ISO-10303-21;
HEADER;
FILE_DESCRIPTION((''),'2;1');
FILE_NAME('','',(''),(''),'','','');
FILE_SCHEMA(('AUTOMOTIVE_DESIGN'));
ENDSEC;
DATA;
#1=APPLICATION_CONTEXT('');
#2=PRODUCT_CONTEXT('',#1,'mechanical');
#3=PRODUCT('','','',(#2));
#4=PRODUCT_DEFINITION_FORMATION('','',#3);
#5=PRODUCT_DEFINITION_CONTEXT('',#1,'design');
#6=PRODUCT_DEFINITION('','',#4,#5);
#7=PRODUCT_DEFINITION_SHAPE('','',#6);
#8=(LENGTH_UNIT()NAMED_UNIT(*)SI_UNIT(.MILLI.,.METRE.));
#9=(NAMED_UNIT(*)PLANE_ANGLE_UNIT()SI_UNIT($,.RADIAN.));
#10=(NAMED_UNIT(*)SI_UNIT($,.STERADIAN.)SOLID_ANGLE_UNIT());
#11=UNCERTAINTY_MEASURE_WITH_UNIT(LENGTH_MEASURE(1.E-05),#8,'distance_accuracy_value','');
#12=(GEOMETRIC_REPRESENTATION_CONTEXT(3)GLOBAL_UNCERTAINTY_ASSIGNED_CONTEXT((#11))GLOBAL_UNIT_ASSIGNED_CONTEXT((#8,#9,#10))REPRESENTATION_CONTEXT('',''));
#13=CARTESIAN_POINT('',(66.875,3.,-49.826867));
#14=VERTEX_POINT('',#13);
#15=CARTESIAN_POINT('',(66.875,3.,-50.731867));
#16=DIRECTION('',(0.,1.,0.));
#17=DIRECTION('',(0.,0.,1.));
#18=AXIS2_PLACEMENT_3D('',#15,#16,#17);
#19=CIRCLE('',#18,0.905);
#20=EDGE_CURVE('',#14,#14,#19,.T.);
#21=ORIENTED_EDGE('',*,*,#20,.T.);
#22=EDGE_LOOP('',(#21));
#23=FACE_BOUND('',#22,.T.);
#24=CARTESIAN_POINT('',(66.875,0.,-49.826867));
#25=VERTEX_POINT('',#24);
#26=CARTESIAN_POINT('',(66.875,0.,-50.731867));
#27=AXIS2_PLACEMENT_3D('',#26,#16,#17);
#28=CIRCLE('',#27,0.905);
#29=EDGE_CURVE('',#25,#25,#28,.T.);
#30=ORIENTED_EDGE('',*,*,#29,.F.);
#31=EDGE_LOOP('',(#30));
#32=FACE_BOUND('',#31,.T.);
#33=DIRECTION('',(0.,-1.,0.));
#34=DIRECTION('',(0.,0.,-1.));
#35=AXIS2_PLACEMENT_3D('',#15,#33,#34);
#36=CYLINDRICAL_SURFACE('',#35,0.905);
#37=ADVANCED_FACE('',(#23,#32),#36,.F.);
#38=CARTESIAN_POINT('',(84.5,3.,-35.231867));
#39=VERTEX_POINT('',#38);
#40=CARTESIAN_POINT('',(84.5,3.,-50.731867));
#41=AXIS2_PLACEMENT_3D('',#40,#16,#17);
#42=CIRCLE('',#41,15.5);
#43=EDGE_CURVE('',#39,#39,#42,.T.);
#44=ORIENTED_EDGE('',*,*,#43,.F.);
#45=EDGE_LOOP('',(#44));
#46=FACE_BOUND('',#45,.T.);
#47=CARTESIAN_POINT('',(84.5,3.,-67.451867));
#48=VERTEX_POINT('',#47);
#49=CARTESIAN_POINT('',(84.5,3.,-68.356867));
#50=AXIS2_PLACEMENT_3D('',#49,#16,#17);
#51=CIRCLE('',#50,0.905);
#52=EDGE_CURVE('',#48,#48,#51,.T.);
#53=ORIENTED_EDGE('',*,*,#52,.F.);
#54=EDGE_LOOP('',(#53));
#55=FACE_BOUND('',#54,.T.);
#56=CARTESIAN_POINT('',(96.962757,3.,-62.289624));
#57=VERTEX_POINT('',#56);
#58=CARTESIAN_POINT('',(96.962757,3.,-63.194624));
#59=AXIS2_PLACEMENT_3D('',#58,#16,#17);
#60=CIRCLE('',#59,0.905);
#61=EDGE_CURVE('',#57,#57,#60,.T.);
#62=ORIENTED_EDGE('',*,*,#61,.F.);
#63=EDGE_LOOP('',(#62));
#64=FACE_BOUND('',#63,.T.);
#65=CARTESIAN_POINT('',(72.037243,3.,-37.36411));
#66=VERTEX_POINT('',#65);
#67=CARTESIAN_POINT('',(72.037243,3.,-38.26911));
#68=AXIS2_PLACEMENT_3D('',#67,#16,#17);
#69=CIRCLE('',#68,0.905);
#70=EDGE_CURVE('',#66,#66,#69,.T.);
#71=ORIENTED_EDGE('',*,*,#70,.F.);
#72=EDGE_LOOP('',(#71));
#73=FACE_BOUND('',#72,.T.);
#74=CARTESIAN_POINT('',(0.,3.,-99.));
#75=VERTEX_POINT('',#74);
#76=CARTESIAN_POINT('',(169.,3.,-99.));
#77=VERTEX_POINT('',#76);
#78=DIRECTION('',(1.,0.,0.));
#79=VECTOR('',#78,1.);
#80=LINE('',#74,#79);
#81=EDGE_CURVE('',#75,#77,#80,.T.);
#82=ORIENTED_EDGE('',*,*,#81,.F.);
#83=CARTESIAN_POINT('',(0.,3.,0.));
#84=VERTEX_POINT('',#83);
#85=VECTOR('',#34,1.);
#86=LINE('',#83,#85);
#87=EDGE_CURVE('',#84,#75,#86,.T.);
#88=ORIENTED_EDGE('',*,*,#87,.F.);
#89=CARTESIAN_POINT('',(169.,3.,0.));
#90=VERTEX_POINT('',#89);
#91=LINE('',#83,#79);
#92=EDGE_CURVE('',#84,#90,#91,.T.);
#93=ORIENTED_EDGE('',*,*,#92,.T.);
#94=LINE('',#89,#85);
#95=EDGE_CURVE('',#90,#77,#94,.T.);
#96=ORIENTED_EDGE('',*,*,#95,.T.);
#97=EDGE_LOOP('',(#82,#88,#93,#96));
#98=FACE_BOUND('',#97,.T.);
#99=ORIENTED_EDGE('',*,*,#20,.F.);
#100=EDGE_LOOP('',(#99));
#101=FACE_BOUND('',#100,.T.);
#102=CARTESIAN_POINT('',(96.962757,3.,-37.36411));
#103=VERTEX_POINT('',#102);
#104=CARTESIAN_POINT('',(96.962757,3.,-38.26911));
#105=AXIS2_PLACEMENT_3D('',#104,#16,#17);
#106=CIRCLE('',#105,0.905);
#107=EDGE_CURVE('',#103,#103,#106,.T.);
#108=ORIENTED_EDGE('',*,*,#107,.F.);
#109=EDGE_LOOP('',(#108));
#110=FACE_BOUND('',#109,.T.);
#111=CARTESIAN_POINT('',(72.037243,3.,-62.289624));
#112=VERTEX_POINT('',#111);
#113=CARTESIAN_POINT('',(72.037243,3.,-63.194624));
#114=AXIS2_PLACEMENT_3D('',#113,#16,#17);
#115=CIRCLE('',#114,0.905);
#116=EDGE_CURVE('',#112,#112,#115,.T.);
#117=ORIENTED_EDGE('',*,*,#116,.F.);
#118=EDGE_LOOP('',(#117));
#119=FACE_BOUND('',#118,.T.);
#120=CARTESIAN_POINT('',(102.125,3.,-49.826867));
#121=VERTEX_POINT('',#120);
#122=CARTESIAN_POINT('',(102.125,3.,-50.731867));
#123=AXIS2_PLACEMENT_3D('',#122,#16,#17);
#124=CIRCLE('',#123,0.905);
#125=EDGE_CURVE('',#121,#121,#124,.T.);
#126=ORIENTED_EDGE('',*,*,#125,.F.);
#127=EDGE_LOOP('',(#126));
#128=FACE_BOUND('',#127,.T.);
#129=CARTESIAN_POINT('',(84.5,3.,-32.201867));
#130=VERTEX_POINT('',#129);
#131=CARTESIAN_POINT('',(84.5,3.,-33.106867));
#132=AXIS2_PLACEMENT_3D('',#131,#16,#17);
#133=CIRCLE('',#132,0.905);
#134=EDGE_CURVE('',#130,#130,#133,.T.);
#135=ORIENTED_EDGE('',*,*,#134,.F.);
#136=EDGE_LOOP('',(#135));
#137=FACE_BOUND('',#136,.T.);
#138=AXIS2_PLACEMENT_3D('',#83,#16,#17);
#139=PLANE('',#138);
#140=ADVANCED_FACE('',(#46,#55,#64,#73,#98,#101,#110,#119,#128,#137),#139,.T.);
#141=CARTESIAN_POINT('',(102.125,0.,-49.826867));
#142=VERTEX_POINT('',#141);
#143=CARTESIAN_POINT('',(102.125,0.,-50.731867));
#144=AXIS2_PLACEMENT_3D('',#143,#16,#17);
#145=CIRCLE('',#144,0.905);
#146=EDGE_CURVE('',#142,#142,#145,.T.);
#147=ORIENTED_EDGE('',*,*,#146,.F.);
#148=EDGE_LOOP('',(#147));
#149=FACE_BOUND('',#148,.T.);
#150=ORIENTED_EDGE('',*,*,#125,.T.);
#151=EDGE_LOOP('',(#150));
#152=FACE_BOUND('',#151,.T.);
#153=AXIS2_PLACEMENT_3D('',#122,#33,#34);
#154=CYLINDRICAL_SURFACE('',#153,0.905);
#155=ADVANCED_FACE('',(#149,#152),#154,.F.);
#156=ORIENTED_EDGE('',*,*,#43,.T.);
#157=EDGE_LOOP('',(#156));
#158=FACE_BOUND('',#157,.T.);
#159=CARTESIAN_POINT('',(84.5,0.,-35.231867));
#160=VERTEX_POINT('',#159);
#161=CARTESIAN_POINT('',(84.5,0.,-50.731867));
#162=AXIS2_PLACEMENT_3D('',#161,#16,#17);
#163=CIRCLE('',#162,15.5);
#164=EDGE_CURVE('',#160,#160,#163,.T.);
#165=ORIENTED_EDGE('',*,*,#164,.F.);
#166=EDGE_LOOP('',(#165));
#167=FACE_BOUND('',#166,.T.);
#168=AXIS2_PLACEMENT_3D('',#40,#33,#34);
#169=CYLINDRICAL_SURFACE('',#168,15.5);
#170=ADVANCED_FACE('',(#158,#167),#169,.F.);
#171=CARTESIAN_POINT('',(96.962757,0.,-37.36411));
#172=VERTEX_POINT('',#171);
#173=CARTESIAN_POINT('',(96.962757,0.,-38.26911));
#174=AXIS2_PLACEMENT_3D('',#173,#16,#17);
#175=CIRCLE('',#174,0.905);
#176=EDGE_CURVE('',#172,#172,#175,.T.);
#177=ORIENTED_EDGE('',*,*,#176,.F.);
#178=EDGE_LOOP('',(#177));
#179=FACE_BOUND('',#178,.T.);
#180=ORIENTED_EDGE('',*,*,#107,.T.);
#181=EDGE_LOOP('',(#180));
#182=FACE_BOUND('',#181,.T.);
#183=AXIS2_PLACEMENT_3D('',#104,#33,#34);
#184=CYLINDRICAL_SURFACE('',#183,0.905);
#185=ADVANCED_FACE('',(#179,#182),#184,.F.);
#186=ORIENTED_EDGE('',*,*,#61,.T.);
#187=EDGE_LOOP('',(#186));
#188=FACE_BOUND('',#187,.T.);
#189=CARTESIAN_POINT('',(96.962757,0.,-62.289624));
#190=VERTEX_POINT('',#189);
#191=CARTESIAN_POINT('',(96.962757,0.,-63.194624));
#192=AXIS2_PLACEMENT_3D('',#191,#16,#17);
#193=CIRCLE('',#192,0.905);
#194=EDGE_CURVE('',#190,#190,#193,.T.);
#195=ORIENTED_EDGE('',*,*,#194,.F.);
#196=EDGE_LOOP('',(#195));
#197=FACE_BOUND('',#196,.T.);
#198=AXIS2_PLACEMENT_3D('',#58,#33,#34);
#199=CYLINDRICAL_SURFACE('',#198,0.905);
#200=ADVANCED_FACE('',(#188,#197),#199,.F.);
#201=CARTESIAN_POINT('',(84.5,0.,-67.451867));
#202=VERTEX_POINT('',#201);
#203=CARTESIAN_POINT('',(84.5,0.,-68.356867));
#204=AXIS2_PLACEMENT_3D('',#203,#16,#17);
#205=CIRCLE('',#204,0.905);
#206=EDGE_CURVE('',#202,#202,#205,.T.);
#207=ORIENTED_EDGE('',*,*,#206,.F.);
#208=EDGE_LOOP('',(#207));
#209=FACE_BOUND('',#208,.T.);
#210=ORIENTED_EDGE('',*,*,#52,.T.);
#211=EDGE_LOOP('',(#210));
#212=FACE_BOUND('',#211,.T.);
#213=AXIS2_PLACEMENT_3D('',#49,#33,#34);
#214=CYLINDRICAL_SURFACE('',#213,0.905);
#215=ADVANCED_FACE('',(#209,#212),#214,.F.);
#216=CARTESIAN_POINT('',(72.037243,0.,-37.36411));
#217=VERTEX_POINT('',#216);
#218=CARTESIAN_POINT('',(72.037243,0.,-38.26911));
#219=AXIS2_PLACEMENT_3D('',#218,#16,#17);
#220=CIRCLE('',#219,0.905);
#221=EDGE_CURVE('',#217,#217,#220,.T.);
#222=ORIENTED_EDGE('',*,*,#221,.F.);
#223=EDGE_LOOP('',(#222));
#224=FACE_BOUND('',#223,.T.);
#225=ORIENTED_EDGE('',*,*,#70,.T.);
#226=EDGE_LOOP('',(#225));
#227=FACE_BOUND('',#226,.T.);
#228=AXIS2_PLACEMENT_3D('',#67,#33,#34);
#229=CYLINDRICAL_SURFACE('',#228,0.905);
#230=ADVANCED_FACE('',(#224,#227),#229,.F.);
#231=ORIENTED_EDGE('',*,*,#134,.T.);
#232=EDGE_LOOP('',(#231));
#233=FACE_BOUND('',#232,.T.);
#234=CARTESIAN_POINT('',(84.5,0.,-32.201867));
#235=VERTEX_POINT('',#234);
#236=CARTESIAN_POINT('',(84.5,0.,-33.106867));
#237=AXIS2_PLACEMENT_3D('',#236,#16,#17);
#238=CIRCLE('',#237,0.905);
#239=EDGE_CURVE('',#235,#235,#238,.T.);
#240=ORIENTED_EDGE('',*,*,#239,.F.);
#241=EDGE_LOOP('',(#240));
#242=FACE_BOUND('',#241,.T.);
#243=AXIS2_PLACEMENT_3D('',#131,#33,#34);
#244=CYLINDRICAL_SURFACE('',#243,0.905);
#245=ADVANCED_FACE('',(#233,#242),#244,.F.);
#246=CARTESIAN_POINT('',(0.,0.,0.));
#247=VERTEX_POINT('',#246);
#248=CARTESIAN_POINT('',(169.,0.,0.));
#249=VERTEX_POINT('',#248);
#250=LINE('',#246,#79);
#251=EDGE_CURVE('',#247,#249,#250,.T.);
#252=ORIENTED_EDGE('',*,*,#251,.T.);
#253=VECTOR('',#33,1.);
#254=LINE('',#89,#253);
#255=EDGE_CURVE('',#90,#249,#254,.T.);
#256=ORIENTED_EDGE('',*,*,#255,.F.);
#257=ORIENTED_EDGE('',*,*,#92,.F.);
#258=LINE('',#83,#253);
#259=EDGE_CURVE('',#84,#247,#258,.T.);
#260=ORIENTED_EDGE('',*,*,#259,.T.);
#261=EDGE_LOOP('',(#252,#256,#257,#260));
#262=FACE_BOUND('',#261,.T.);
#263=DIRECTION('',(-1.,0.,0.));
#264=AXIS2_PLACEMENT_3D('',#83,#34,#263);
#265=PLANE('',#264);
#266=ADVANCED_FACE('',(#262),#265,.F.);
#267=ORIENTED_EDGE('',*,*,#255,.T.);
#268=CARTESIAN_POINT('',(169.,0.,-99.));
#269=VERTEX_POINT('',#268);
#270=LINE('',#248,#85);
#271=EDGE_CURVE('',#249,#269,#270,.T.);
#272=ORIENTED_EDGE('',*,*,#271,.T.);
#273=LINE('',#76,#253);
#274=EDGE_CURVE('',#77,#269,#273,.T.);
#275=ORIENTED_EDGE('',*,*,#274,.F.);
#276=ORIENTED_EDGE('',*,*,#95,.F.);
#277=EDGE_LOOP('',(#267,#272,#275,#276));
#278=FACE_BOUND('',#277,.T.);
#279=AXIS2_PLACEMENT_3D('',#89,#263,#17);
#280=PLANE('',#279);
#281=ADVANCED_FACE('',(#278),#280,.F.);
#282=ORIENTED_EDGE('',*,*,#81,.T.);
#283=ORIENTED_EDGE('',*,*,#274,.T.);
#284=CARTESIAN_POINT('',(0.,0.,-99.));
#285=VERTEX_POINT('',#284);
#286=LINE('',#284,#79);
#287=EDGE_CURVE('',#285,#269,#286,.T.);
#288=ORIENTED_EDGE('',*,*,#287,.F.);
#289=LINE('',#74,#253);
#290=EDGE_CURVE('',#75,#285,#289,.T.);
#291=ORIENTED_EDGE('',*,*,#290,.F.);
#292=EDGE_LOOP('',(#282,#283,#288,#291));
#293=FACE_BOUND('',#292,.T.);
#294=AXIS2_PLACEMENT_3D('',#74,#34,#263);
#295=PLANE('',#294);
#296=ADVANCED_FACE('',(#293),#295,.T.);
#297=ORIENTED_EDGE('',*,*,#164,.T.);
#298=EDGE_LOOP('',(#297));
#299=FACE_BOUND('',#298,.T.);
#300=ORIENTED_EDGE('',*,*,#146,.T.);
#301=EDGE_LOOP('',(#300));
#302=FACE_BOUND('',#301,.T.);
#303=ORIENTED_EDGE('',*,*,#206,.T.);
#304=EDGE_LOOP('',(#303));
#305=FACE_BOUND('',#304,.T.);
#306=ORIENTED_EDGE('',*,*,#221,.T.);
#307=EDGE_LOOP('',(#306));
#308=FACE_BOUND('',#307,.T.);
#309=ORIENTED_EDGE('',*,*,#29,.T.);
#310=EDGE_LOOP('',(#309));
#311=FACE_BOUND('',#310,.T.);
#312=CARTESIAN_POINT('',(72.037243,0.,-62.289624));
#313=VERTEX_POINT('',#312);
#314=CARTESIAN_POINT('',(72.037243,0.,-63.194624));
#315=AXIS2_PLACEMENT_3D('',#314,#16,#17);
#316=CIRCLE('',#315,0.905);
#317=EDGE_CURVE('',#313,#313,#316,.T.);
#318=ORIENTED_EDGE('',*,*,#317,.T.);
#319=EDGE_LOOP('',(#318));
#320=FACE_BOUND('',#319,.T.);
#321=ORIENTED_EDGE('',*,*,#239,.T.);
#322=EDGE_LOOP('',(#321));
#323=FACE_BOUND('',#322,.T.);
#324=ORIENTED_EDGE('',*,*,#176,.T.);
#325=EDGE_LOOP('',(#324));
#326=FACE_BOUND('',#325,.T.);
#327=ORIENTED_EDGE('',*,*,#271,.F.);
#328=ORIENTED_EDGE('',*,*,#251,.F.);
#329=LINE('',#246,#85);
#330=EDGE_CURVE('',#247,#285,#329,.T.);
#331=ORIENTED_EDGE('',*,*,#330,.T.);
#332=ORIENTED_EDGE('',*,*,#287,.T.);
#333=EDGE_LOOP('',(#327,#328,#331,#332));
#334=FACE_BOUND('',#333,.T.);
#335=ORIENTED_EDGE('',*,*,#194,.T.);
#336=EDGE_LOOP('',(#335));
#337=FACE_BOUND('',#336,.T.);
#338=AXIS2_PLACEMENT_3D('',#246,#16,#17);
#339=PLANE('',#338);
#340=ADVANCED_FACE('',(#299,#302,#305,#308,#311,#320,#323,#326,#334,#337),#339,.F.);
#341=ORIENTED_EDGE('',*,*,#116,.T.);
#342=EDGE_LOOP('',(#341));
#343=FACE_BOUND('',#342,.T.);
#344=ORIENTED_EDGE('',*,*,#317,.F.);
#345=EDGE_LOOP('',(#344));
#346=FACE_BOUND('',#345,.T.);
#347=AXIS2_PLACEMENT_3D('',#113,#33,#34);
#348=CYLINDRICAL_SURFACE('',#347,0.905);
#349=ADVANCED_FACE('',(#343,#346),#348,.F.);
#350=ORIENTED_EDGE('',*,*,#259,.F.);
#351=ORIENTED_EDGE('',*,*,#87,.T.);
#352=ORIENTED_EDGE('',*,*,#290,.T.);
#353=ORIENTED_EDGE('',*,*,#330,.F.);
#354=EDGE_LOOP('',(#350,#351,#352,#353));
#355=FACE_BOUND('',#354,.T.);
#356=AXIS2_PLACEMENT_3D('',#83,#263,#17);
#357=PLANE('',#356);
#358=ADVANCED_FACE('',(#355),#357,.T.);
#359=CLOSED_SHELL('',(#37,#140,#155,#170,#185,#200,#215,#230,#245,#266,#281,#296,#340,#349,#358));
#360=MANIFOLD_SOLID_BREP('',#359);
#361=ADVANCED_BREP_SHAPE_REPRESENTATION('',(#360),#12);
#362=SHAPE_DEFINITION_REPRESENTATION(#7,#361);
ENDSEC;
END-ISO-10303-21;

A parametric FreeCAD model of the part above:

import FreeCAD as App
import Part
import Sketcher

V = App.Vector

doc = App.newDocument("Part")
body = doc.addObject("PartDesign::Body", "Body")

# Sketch on XZ plane
sketch1 = body.newObject("Sketcher::SketchObject", "Sketch")
sketch1.AttachmentSupport = (doc.getObject("XZ_Plane"), [""])
sketch1.MapMode = "FlatFace"
sketch1.addGeometry([
    Part.LineSegment(V(0, -99, 0), V(0, 0, 0)),  # 0
    Part.LineSegment(V(0, 0, 0), V(169, 0, 0)),  # 1
    Part.LineSegment(V(169, 0, 0), V(169, -99, 0)),  # 2
    Part.LineSegment(V(169, -99, 0), V(0, -99, 0)),  # 3
    Part.Circle(V(72, -38.3, 0), V(0, 0, 1), 0.9),  # 4
    Part.Circle(V(84.5, -33.1, 0), V(0, 0, 1), 0.9),  # 5
    Part.Circle(V(97, -38.3, 0), V(0, 0, 1), 0.9),  # 6
    Part.Circle(V(66.9, -50.7, 0), V(0, 0, 1), 0.9),  # 7
    Part.Circle(V(72, -63.2, 0), V(0, 0, 1), 0.9),  # 8
    Part.Circle(V(84.5, -50.7, 0), V(0, 0, 1), 15.5),  # 9
    Part.Circle(V(102.1, -50.7, 0), V(0, 0, 1), 0.9),  # 10
    Part.Circle(V(84.5, -68.4, 0), V(0, 0, 1), 0.9),  # 11
    Part.Circle(V(97, -63.2, 0), V(0, 0, 1), 0.9),  # 12
], False)
sketch1.addConstraint([
    Sketcher.Constraint("Coincident", 0, 2, 1, 1),
    Sketcher.Constraint("Coincident", 1, 2, 2, 1),
    Sketcher.Constraint("Coincident", 2, 2, 3, 1),
    Sketcher.Constraint("Coincident", 3, 2, 0, 1),
    Sketcher.Constraint("Vertical", 0),
    Sketcher.Constraint("Horizontal", 1),
    Sketcher.Constraint("Vertical", 2),
    Sketcher.Constraint("Horizontal", 3),
    Sketcher.Constraint("Coincident", 0, 2, -1, 1),
    Sketcher.Constraint("Equal", 4, 5),
    Sketcher.Constraint("Equal", 5, 6),
    Sketcher.Constraint("Equal", 6, 7),
    Sketcher.Constraint("Equal", 7, 8),
    Sketcher.Constraint("Equal", 8, 10),
    Sketcher.Constraint("Equal", 10, 11),
    Sketcher.Constraint("Equal", 11, 12),
    Sketcher.Constraint("Horizontal", 4, 3, 6, 3),
    Sketcher.Constraint("Horizontal", 7, 3, 9, 3),
    Sketcher.Constraint("Horizontal", 9, 3, 10, 3),
    Sketcher.Constraint("Horizontal", 8, 3, 12, 3),
    Sketcher.Constraint("Vertical", 4, 3, 8, 3),
    Sketcher.Constraint("Vertical", 5, 3, 9, 3),
    Sketcher.Constraint("Vertical", 9, 3, 11, 3),
    Sketcher.Constraint("Vertical", 6, 3, 12, 3),
    Sketcher.Constraint("Diameter", 9, 31.0),
    Sketcher.Constraint("Diameter", 4, 1.81),
    Sketcher.Constraint("DistanceX", 1, 1, 1, 2, 169.0),
    Sketcher.Constraint("DistanceY", 0, 1, 0, 2, 99.0),
    Sketcher.Constraint("DistanceX", -1, 1, 5, 3, 84.5),
    Sketcher.Constraint("DistanceX", -1, 1, 7, 3, 66.875),
    Sketcher.Constraint("DistanceX", -1, 1, 10, 3, 102.125),
    Sketcher.Constraint("DistanceY", 7, 3, 5, 3, 17.625),
    Sketcher.Constraint("DistanceY", 11, 3, 9, 3, 17.625),
    Sketcher.Constraint("DistanceY", 4, 3, -1, 1, 38.26911),
    Sketcher.Constraint("DistanceX", -1, 1, 4, 3, 72.037243),
    Sketcher.Constraint("DistanceY", 5, 3, -1, 1, 33.106867),
    Sketcher.Constraint("DistanceX", -1, 1, 6, 3, 96.962757),
    Sketcher.Constraint("DistanceY", 8, 3, -1, 1, 63.194624),
])
pad1 = body.newObject("PartDesign::Pad", "Pad")
pad1.Profile = sketch1
pad1.Length = 3
pad1.Reversed = True

doc.recompute()
